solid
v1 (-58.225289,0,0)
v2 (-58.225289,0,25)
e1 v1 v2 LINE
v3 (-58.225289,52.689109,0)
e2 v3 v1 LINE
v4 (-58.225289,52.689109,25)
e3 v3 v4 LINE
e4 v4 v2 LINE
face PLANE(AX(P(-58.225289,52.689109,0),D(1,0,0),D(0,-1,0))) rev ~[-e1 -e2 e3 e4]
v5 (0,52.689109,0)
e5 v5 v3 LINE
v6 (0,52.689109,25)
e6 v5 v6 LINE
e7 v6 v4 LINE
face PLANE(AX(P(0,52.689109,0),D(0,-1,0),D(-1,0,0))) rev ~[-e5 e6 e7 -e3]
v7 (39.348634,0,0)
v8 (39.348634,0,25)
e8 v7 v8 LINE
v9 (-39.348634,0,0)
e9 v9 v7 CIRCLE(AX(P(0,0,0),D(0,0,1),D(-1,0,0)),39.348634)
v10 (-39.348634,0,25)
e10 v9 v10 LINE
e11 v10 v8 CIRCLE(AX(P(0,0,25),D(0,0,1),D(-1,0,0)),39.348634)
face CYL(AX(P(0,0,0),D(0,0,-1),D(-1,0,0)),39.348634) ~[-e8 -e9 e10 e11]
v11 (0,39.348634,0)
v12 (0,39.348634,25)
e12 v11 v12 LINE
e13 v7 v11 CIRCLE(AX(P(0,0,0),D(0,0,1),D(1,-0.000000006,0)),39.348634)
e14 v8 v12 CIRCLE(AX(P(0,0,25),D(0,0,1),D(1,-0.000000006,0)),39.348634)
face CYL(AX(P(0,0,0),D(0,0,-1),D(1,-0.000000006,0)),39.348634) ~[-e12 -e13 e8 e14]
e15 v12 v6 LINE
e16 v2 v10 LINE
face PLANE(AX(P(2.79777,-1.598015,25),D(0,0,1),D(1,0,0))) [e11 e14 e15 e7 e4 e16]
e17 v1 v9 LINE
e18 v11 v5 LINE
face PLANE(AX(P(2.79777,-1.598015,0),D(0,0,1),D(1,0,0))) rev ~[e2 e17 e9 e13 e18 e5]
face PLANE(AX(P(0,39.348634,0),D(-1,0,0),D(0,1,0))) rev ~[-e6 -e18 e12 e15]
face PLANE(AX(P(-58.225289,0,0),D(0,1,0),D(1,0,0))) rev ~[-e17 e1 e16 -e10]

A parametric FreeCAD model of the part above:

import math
import FreeCAD as App
import Part
import Sketcher
from FreeCAD import Vector
Q = App.Units.Quantity

doc = App.newDocument("Part")
body = doc.addObject("PartDesign::Body", "Body")

# Sketch on XY plane
sketch1 = doc.addObject("Sketcher::SketchObject", "Sketch")
body.addObject(sketch1)
sketch1.AttachmentSupport = (doc.XY_Plane, [""])
sketch1.MapMode = "FlatFace"
sketch1.addGeometry(Part.ArcOfCircle(Part.Circle(Vector(0, 0, 0), Vector(0, 0, 1), 39), math.radians(90), math.radians(180)), False)
sketch1.addGeometry(Part.LineSegment(Vector(0, 39, 0), Vector(0, 53, 0)), False)
sketch1.addGeometry(Part.LineSegment(Vector(0, 53, 0), Vector(-58, 53, 0)), False)
sketch1.addGeometry(Part.LineSegment(Vector(-58, 53, 0), Vector(-58, 0, 0)), False)
sketch1.addGeometry(Part.LineSegment(Vector(-58, 0, 0), Vector(-39, 0, 0)), False)
sketch1.addConstraint(Sketcher.Constraint("Coincident", 0, 1, 1, 1))
sketch1.addConstraint(Sketcher.Constraint("Coincident", 1, 2, 2, 1))
sketch1.addConstraint(Sketcher.Constraint("Coincident", 2, 2, 3, 1))
sketch1.addConstraint(Sketcher.Constraint("Coincident", 3, 2, 4, 1))
sketch1.addConstraint(Sketcher.Constraint("Coincident", 4, 2, 0, 2))
sketch1.addConstraint(Sketcher.Constraint("Vertical", 1))
sketch1.addConstraint(Sketcher.Constraint("Horizontal", 2))
sketch1.addConstraint(Sketcher.Constraint("Vertical", 3))
sketch1.addConstraint(Sketcher.Constraint("Horizontal", 4))
sketch1.addConstraint(Sketcher.Constraint("Coincident", 0, 3, -1, 1))
sketch1.addConstraint(Sketcher.Constraint("PointOnObject", 0, 1, -2))
sketch1.addConstraint(Sketcher.Constraint("PointOnObject", 3, 2, -1))
sketch1.addConstraint(Sketcher.Constraint("Radius", 0, Q("39.348634 mm")))
sketch1.addConstraint(Sketcher.Constraint("DistanceX", 2, 2, 2, 1, Q("58.225289 mm")))
sketch1.addConstraint(Sketcher.Constraint("DistanceY", 3, 2, 3, 1, Q("52.689109 mm")))
pad1 = doc.addObject("PartDesign::Pad", "Pad")
body.addObject(pad1)
pad1.Profile = sketch1
pad1.Length = 25

# Sketch on XY plane
sketch2 = doc.addObject("Sketcher::SketchObject", "Sketch001")
body.addObject(sketch2)
sketch2.AttachmentSupport = (doc.XY_Plane, [""])
sketch2.MapMode = "FlatFace"
sketch2.addGeometry(Part.ArcOfCircle(Part.Circle(Vector(0, 0, 0), Vector(0, 0, 1), 39), math.radians(180), math.radians(360)), False)
sketch2.addGeometry(Part.ArcOfCircle(Part.Circle(Vector(0, 0, 0), Vector(0, 0, 1), 39), math.radians(0), math.radians(90)), False)
sketch2.addGeometry(Part.ArcOfCircle(Part.Circle(Vector(0, 0, 0), Vector(0, 0, 1), 39), math.radians(90), math.radians(180)), False)
sketch2.addConstraint(Sketcher.Constraint("Tangent", 0, 2, 1, 1))
sketch2.addConstraint(Sketcher.Constraint("Tangent", 1, 2, 2, 1))
sketch2.addConstraint(Sketcher.Constraint("Tangent", 2, 2, 0, 1))
sketch2.addConstraint(Sketcher.Constraint("Coincident", 0, 3, -1, 1))
sketch2.addConstraint(Sketcher.Constraint("PointOnObject", 0, 2, -1))
sketch2.addConstraint(Sketcher.Constraint("PointOnObject", 1, 2, -2))
sketch2.addConstraint(Sketcher.Constraint("PointOnObject", 2, 2, -1))
sketch2.addConstraint(Sketcher.Constraint("Radius", 0, Q("39.348634 mm")))
pad2 = doc.addObject("PartDesign::Pad", "Pad001")
body.addObject(pad2)
pad2.Profile = sketch2
pad2.Length = 25

doc.recompute()
